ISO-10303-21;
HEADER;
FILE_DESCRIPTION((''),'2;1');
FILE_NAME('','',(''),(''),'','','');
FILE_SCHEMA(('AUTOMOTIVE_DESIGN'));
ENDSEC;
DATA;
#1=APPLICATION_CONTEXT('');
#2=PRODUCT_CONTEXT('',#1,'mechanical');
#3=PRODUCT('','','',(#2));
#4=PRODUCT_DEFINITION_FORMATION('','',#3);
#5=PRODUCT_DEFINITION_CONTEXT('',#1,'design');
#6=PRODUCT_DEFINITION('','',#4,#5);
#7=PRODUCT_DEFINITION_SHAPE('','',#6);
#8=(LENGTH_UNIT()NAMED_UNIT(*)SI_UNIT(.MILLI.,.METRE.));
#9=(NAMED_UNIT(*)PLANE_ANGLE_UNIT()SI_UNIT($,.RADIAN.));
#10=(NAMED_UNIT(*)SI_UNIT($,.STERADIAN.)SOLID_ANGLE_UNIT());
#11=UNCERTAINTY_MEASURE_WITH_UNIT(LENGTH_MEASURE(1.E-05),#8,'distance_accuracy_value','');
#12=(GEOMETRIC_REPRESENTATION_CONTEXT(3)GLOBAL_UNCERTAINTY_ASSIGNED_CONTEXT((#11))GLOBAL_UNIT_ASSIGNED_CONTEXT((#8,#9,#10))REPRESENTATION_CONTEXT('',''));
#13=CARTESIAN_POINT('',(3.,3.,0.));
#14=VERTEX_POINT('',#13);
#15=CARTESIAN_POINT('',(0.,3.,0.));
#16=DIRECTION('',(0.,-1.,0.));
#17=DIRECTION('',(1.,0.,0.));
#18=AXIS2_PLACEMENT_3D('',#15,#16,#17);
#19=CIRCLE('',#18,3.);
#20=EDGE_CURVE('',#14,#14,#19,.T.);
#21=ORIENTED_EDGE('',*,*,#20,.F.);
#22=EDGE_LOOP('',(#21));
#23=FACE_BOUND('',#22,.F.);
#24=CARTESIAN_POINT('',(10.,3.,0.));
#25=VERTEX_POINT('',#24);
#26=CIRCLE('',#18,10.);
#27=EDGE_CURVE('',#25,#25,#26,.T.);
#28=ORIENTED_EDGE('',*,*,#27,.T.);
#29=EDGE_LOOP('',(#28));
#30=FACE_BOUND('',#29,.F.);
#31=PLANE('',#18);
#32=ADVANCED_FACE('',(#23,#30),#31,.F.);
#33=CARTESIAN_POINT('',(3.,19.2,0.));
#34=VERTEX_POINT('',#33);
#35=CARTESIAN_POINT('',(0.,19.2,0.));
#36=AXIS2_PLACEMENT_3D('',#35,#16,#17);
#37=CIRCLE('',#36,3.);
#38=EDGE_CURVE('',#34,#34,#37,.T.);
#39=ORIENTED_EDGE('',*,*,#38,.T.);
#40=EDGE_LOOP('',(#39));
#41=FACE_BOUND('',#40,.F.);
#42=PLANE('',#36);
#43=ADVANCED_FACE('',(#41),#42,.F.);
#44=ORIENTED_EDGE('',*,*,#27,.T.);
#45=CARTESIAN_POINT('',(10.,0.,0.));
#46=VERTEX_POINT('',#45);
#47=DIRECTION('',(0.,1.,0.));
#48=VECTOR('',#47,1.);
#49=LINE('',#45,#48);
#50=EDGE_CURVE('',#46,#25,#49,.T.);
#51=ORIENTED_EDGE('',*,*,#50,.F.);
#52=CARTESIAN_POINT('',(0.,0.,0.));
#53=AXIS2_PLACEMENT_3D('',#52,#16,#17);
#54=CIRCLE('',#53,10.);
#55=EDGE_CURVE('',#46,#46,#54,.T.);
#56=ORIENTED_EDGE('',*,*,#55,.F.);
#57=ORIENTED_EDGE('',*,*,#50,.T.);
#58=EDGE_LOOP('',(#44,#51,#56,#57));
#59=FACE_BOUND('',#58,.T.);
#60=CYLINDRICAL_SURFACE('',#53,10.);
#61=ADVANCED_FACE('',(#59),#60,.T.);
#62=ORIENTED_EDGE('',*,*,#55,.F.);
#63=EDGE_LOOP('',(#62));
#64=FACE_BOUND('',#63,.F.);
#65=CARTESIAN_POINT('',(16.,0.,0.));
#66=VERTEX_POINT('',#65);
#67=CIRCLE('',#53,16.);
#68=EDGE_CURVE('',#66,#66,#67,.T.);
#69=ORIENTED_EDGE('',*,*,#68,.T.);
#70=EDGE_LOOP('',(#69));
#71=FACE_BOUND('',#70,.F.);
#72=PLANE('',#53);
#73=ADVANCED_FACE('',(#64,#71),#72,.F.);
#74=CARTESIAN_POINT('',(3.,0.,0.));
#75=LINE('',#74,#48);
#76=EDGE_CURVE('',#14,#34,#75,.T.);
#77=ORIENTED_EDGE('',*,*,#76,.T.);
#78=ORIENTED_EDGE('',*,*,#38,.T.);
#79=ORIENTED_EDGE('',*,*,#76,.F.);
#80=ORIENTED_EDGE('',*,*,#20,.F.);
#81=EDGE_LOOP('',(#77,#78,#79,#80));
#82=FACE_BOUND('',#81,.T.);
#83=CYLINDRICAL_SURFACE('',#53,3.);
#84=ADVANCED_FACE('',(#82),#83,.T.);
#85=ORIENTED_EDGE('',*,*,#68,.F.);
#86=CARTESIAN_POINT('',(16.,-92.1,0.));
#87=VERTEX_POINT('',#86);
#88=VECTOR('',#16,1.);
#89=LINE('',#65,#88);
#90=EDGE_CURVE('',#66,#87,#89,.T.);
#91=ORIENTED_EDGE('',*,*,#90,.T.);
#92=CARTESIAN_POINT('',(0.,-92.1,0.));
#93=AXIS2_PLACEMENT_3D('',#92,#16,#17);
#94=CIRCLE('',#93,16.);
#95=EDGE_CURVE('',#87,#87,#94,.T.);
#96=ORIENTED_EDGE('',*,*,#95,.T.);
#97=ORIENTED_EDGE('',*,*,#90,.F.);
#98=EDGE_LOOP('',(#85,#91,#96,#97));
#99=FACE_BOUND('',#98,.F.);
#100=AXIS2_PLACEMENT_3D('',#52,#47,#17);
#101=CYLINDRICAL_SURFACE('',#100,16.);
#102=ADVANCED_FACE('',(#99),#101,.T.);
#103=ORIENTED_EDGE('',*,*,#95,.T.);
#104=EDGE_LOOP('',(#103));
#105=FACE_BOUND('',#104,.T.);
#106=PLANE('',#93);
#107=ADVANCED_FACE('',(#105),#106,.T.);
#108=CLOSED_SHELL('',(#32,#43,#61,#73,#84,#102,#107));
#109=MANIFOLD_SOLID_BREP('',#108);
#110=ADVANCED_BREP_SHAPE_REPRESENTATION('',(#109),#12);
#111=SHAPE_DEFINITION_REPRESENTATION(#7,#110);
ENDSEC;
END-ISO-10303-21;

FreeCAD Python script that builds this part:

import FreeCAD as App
import Part
import Sketcher
from FreeCAD import Vector

doc = App.newDocument("Part")
body = doc.addObject("PartDesign::Body", "Body")

# Sketch on XZ plane
sketch1 = body.newObject("Sketcher::SketchObject", "Sketch")
sketch1.AttachmentSupport = (doc.getObject("XZ_Plane"), [""])
sketch1.MapMode = "FlatFace"
sketch1.addGeometry(Part.Circle(Vector(0, 0, 0), Vector(0, 0, 1), 10), False)
sketch1.addConstraint([
    Sketcher.Constraint("Coincident", 0, 3, -1, 1),
    Sketcher.Constraint("Diameter", 0, 20.0),
])
pad1 = body.newObject("PartDesign::Pad", "Pad")
pad1.Profile = sketch1
pad1.Length = 3
pad1.Reversed = True

# Sketch on XZ plane
sketch2 = body.newObject("Sketcher::SketchObject", "Sketch001")
sketch2.AttachmentSupport = (doc.getObject("XZ_Plane"), [""])
sketch2.MapMode = "FlatFace"
sketch2.addGeometry(Part.Circle(Vector(0, 0, 0), Vector(0, 0, 1), 3), False)
sketch2.addConstraint([
    Sketcher.Constraint("Coincident", 0, 3, -1, 1),
    Sketcher.Constraint("Diameter", 0, 6.0),
])
pad2 = body.newObject("PartDesign::Pad", "Pad001")
pad2.Profile = sketch2
pad2.Length = 19.2
pad2.Reversed = True

# Sketch on XZ plane
sketch3 = body.newObject("Sketcher::SketchObject", "Sketch002")
sketch3.AttachmentSupport = (doc.getObject("XZ_Plane"), [""])
sketch3.MapMode = "FlatFace"
sketch3.addGeometry(Part.Circle(Vector(0, 0, 0), Vector(0, 0, 1), 16), False)
sketch3.addConstraint([
    Sketcher.Constraint("Coincident", 0, 3, -1, 1),
    Sketcher.Constraint("Diameter", 0, 32.0),
])
pad3 = body.newObject("PartDesign::Pad", "Pad002")
pad3.Profile = sketch3
pad3.Length = 92.1

doc.recompute()
